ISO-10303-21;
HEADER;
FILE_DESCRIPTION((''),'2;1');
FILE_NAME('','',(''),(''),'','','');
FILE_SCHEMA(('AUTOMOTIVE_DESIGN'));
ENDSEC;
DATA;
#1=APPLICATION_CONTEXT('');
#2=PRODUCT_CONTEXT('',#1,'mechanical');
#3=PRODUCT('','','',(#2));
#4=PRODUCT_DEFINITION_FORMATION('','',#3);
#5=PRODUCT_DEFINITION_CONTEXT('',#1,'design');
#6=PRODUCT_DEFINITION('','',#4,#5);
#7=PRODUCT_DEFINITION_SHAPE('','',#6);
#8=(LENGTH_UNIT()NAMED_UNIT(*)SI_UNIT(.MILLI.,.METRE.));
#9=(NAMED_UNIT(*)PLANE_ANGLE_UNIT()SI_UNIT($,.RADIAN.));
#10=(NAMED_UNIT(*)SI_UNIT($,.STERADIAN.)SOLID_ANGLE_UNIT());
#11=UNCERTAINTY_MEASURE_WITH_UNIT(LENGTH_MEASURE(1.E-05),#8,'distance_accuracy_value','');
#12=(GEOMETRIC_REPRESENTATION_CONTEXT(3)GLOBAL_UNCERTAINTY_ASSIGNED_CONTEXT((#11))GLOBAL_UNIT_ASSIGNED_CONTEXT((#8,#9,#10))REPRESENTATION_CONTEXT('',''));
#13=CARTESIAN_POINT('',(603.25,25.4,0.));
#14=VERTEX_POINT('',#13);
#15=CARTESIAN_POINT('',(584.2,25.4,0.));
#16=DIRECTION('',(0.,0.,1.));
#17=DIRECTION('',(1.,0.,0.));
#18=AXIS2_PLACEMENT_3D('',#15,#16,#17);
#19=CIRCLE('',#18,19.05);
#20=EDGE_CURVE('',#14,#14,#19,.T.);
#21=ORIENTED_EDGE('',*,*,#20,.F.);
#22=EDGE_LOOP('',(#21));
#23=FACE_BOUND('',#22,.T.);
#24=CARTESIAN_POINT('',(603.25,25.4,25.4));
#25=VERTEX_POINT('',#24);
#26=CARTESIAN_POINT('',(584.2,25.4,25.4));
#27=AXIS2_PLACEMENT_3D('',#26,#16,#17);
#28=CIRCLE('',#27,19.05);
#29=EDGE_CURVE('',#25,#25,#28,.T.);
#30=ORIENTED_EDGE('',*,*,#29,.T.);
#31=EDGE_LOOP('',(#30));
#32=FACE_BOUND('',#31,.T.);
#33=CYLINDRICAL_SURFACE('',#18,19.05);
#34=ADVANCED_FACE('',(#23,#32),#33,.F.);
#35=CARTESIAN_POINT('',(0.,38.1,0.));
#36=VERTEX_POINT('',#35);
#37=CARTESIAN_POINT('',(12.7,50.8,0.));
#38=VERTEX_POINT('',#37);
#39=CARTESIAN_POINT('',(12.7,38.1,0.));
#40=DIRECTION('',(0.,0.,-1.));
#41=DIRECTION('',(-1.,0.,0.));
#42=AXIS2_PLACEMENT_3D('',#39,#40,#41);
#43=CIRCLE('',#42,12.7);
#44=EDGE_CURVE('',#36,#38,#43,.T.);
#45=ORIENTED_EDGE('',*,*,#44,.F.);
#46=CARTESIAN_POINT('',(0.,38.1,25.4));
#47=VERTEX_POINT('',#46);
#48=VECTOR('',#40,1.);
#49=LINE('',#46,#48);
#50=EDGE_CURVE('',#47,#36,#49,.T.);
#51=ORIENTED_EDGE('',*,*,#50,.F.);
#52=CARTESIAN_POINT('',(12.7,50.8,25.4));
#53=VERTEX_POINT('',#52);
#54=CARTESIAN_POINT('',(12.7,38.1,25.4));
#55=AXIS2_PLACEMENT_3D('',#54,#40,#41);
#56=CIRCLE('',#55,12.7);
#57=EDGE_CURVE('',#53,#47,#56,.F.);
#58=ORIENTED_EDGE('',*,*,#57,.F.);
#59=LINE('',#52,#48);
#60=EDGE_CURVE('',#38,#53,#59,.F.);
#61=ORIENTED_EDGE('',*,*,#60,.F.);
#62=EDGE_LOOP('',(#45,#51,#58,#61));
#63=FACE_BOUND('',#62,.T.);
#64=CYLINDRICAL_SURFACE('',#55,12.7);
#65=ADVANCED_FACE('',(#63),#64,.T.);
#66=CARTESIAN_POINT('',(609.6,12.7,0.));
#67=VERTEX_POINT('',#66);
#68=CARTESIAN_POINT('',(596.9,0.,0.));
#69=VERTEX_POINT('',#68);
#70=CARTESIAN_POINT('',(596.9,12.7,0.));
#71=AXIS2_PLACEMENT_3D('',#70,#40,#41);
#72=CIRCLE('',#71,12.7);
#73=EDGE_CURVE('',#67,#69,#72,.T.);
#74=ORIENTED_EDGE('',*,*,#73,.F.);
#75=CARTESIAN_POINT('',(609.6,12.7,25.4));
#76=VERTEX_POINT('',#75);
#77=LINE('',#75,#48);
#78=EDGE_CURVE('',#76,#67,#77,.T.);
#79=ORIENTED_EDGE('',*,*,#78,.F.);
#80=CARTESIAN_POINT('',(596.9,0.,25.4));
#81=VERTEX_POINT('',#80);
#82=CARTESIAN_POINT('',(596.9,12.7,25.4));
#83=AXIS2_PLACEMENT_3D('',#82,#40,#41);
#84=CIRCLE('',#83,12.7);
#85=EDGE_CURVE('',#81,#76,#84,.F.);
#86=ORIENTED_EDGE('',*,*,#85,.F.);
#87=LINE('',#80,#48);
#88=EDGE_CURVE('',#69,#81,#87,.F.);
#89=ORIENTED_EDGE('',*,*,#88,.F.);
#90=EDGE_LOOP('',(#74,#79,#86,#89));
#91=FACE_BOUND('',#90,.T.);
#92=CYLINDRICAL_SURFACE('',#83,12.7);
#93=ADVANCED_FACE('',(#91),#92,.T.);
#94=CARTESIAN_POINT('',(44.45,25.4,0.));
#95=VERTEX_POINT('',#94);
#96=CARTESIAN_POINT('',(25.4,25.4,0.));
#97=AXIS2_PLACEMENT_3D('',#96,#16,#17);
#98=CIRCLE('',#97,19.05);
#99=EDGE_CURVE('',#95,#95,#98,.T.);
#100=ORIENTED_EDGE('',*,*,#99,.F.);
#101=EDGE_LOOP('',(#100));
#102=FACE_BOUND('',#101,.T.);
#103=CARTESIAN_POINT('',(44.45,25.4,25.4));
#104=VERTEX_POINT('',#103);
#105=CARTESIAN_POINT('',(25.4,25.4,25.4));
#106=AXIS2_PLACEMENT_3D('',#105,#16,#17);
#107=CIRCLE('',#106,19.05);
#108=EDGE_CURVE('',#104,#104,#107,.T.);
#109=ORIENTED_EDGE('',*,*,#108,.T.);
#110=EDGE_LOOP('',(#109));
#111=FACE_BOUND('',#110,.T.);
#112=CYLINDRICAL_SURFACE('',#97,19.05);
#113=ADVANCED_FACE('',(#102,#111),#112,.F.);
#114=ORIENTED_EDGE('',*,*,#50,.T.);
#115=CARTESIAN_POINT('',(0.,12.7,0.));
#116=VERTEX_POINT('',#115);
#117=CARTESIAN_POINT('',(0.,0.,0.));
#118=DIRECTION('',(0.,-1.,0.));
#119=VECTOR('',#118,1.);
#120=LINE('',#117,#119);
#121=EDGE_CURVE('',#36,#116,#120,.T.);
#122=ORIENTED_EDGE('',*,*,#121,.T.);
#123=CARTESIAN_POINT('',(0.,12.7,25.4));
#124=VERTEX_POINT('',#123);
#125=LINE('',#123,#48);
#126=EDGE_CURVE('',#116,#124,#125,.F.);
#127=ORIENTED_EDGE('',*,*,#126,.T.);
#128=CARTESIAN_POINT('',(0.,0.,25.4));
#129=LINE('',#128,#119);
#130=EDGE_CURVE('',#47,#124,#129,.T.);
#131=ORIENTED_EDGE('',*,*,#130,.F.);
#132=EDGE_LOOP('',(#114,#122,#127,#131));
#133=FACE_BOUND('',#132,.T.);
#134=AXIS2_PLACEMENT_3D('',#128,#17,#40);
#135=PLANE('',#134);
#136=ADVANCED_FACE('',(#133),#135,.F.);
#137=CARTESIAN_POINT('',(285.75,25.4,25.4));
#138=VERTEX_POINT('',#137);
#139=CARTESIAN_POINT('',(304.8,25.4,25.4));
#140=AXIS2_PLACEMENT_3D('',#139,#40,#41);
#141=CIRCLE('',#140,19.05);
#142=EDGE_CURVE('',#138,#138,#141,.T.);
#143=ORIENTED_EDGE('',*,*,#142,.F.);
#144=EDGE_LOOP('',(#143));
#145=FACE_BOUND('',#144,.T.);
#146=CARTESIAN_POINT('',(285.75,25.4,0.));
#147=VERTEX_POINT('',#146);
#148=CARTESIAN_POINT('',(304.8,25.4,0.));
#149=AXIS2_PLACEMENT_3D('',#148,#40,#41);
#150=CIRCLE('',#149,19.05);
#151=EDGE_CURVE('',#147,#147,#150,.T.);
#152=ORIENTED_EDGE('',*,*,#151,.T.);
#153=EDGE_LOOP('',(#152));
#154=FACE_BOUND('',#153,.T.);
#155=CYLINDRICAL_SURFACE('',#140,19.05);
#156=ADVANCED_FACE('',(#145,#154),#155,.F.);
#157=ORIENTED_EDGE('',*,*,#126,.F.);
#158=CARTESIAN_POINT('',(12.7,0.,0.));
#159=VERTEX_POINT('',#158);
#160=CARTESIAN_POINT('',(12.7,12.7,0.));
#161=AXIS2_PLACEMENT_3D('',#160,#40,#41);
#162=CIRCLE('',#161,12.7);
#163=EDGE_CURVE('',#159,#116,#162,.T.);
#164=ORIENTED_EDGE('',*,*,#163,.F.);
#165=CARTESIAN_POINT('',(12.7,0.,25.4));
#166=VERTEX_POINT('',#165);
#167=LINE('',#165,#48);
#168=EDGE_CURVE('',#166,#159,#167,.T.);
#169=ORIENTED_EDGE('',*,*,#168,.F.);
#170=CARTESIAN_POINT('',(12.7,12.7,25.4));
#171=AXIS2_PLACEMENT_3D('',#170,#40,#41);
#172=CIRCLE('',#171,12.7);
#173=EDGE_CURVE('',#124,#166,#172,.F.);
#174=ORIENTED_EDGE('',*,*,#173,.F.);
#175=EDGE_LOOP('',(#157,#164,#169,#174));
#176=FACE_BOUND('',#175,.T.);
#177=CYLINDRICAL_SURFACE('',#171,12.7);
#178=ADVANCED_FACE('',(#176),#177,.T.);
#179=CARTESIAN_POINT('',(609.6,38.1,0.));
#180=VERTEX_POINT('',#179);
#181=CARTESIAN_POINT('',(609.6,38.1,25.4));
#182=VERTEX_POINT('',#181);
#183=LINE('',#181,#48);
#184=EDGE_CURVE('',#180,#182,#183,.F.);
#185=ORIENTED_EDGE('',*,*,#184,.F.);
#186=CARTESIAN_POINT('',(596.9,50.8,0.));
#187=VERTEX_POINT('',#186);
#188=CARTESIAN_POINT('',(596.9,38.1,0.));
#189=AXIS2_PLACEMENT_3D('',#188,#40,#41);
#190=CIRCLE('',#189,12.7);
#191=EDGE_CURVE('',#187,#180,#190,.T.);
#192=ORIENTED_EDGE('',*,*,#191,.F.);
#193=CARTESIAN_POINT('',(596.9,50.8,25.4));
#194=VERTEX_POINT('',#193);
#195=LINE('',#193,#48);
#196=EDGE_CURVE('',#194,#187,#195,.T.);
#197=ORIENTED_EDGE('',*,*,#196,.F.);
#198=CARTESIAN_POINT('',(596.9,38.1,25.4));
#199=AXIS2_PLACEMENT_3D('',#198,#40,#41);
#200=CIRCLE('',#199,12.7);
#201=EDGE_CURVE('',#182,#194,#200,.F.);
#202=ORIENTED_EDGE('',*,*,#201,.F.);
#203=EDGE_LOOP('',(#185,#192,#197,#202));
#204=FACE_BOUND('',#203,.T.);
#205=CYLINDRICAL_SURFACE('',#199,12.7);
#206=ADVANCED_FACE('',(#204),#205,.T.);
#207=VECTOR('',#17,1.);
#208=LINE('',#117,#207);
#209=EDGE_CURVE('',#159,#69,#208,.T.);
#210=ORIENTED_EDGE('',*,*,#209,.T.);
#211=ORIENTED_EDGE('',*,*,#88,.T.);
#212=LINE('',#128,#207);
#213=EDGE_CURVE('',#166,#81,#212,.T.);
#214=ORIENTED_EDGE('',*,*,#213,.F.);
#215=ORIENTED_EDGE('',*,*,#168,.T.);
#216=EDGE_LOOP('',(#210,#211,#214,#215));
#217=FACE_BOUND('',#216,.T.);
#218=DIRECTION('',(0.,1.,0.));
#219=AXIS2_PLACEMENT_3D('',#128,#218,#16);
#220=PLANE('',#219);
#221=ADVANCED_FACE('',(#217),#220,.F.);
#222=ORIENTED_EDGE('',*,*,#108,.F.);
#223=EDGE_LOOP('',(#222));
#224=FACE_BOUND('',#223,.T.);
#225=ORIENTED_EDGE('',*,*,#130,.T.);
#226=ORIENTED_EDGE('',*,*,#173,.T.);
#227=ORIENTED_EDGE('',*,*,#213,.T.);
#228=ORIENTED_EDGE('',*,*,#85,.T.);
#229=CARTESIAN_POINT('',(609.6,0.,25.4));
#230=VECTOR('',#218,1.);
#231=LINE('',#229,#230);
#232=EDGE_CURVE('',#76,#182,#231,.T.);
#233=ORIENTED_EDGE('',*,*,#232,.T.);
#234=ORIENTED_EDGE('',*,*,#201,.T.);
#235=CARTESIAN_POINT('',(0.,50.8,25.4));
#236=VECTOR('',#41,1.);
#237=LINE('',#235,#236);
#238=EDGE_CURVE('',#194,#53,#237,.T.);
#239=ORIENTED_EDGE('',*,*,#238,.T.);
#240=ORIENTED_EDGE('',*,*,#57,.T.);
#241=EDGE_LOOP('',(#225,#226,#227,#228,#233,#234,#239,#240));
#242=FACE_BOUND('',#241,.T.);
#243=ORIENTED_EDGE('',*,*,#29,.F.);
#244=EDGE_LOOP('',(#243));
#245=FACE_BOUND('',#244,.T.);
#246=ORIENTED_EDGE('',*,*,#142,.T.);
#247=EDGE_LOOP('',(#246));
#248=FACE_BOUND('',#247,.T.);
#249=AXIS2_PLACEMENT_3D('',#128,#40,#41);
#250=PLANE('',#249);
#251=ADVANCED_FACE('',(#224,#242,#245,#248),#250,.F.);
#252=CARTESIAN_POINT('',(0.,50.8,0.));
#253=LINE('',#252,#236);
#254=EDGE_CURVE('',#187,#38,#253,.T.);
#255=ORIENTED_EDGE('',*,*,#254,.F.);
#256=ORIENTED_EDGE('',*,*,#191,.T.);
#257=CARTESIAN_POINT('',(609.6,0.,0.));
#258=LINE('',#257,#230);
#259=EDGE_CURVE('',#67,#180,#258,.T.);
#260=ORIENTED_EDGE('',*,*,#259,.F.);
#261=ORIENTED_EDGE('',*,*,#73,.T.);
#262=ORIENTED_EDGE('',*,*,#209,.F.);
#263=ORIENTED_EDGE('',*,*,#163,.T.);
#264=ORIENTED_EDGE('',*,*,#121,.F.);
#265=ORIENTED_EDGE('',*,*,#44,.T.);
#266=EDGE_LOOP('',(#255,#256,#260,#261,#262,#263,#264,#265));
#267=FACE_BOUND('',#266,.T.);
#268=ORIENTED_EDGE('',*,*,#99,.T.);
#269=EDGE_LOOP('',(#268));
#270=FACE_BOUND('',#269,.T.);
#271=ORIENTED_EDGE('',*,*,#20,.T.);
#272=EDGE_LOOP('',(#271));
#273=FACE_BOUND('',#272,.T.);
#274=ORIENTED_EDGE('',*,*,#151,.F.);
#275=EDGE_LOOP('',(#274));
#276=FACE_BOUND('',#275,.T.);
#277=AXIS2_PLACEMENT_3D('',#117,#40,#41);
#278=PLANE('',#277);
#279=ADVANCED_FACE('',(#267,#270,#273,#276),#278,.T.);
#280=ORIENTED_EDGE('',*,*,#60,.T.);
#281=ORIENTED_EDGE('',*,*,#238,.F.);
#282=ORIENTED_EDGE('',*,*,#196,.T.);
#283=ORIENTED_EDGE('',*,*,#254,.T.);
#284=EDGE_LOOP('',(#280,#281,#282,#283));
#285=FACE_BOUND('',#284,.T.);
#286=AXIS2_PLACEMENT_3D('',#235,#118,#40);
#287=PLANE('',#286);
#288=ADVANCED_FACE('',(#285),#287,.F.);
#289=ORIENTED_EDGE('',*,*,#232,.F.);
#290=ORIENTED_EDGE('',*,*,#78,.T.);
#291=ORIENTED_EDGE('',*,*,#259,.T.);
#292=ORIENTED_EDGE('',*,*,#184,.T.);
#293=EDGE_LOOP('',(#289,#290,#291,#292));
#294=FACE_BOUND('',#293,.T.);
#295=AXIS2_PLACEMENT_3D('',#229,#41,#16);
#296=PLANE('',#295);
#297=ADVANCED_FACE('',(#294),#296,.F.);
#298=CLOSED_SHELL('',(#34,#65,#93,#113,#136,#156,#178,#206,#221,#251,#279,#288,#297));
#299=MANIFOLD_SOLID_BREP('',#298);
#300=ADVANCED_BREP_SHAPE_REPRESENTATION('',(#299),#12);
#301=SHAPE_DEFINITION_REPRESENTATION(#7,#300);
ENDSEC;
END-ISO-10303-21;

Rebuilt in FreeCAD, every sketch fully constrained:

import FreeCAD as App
import Part
import Sketcher
Q = App.Units.Quantity


def edges_at(feature, points):
    """Names of the edges that pass closest to the given points."""
    edges = feature.Shape.Edges
    near = lambda p: min(range(len(edges)), key=lambda i: edges[i].distToShape(Part.Vertex(*p))[0])
    return sorted({f"Edge{near(p) + 1}" for p in points})


def add_polygon(sketch, points):
    """Adds a closed chain of lines whose ends are joined by coincident constraints."""
    first, n = sketch.GeometryCount, len(points)
    for a, b in zip(points, points[1:] + points[:1]):
        sketch.addGeometry(Part.LineSegment(App.Vector(*a, 0), App.Vector(*b, 0)), False)
    for i in range(n):
        sketch.addConstraint(Sketcher.Constraint("Coincident", first + i, 2, first + (i + 1) % n, 1))

doc = App.newDocument("Part")
params = doc.addObject("Spreadsheet::Sheet", "Params")
for row, (alias, value) in enumerate([
    ("sketch1_width", "24 in"),
    ("sketch1_height", "2 in"),
    ("pad1_length", "1 in"),
    ("fillet_radius", "0.5 in"),
    ("sketch2_diameter", "1.5 in"),
    ("sketch3_diameter", "1.5 in"),
    ("sketch4_diameter", "1.5 in"),
], start=1):
    params.set(f"A{row}", alias)
    params.set(f"B{row}", "=" + value)
    params.setAlias(f"B{row}", alias)

body = doc.addObject("PartDesign::Body", "Body")

# Sketch on XY plane
sketch1 = body.newObject("Sketcher::SketchObject", "Sketch")
sketch1.AttachmentSupport = (doc.getObject("XY_Plane"), [""])
sketch1.MapMode = "FlatFace"
add_polygon(sketch1, [(0, 51), (0, 0), (610, 0), (610, 51)])  # lines 0-3
sketch1.addConstraint([
    Sketcher.Constraint("Vertical", 0),
    Sketcher.Constraint("Horizontal", 1),
    Sketcher.Constraint("Vertical", 2),
    Sketcher.Constraint("Horizontal", 3),
    Sketcher.Constraint("Coincident", 0, 2, -1, 1),
    Sketcher.Constraint("DistanceX", 1, 1, 1, 2, Q("24 in")),
    Sketcher.Constraint("DistanceY", 0, 2, 0, 1, Q("2 in")),
])
sketch1.setExpression("Constraints[9]", "Params.sketch1_width")
sketch1.setExpression("Constraints[10]", "Params.sketch1_height")
pad1 = body.newObject("PartDesign::Pad", "Pad")
pad1.Profile = sketch1
pad1.setExpression("Length", "Params.pad1_length")
doc.recompute()

fillet = body.newObject("PartDesign::Fillet", "Fillet")
fillet.Base = (pad1, edges_at(pad1, [
    (0, 50.8, 12.7),
    (609.6, 50.8, 12.7),
    (609.6, 0, 12.7),
    (0, 0, 12.7),
]))
fillet.setExpression("Radius", "Params.fillet_radius")

# Sketch on XY plane
sketch2 = body.newObject("Sketcher::SketchObject", "Sketch001")
sketch2.AttachmentSupport = (doc.getObject("XY_Plane"), [""])
sketch2.MapMode = "FlatFace"
sketch2.AttachmentOffset = App.Placement(App.Vector(0, 0, 1 * 25.4), App.Rotation())
sketch2.addGeometry(Part.Circle(App.Vector(584, 25, 0), App.Vector(0, 0, 1), 19), False)
sketch2.addConstraint([
    Sketcher.Constraint("Diameter", 0, Q("1.5 in")),
    Sketcher.Constraint("DistanceX", -1, 1, 0, 3, Q("23 in")),
    Sketcher.Constraint("DistanceY", -1, 1, 0, 3, Q("1 in")),
])
sketch2.setExpression("Constraints[0]", "Params.sketch2_diameter")
pocket1 = body.newObject("PartDesign::Pocket", "Pocket")
pocket1.Profile = sketch2
pocket1.Type = "ThroughAll"

# Sketch on XY plane
sketch3 = body.newObject("Sketcher::SketchObject", "Sketch002")
sketch3.AttachmentSupport = (doc.getObject("XY_Plane"), [""])
sketch3.MapMode = "FlatFace"
sketch3.addGeometry(Part.Circle(App.Vector(305, 25, 0), App.Vector(0, 0, 1), 19), False)
sketch3.addConstraint([
    Sketcher.Constraint("Diameter", 0, Q("1.5 in")),
    Sketcher.Constraint("DistanceX", -1, 1, 0, 3, Q("12 in")),
    Sketcher.Constraint("DistanceY", -1, 1, 0, 3, Q("1 in")),
])
sketch3.setExpression("Constraints[0]", "Params.sketch3_diameter")
pocket2 = body.newObject("PartDesign::Pocket", "Pocket001")
pocket2.Profile = sketch3
pocket2.Type = "ThroughAll"
pocket2.Reversed = True

# Sketch on XY plane
sketch4 = body.newObject("Sketcher::SketchObject", "Sketch003")
sketch4.AttachmentSupport = (doc.getObject("XY_Plane"), [""])
sketch4.MapMode = "FlatFace"
sketch4.AttachmentOffset = App.Placement(App.Vector(0, 0, 1 * 25.4), App.Rotation())
sketch4.addGeometry(Part.Circle(App.Vector(25, 25, 0), App.Vector(0, 0, 1), 19), False)
sketch4.addConstraint([
    Sketcher.Constraint("Diameter", 0, Q("1.5 in")),
    Sketcher.Constraint("DistanceX", -1, 1, 0, 3, Q("1 in")),
    Sketcher.Constraint("DistanceY", -1, 1, 0, 3, Q("1 in")),
])
sketch4.setExpression("Constraints[0]", "Params.sketch4_diameter")
pocket3 = body.newObject("PartDesign::Pocket", "Pocket002")
pocket3.Profile = sketch4
pocket3.Type = "ThroughAll"

doc.recompute()
